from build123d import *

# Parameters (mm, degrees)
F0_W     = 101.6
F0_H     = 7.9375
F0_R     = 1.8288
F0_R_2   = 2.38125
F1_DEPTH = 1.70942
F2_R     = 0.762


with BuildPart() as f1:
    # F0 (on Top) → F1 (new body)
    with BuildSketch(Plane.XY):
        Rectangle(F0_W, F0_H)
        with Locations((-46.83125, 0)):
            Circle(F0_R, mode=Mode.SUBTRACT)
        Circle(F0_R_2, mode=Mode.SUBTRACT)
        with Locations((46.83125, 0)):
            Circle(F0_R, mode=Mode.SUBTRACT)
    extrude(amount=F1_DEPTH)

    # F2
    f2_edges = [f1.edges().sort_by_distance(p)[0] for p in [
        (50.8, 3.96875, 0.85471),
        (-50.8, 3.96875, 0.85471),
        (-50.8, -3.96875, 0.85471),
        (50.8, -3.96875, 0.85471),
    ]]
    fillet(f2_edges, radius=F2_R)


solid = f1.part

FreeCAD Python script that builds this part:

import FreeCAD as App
import Part
import Sketcher

V = App.Vector
Q = App.Units.Quantity


def edges_at(feature, points):
    """Names of the edges that pass closest to the given points."""
    edges = feature.Shape.Edges
    near = lambda p: min(range(len(edges)), key=lambda i: edges[i].distToShape(Part.Vertex(*p))[0])
    return sorted({f"Edge{near(p) + 1}" for p in points})


def add_polygon(sketch, points):
    """Adds a closed chain of lines whose ends are joined by coincident constraints."""
    first, n = sketch.GeometryCount, len(points)
    for a, b in zip(points, points[1:] + points[:1]):
        sketch.addGeometry(Part.LineSegment(App.Vector(*a, 0), App.Vector(*b, 0)), False)
    for i in range(n):
        sketch.addConstraint(Sketcher.Constraint("Coincident", first + i, 2, first + (i + 1) % n, 1))

doc = App.newDocument("Part")
body = doc.addObject("PartDesign::Body", "Body")

sketch1 = body.newObject("Sketcher::SketchObject", "Sketch")
sketch1.AttachmentSupport = (doc.getObject("XY_Plane"), [""])
sketch1.MapMode = "FlatFace"
add_polygon(sketch1, [(-50.8, 4), (-50.8, -4), (50.8, -4), (50.8, 4)])
sketch1.addGeometry(Part.Circle(V(-46.8, 0, 0), V(0, 0, 1), 1.8), False)
sketch1.addGeometry(Part.Circle(V(0, 0, 0), V(0, 0, 1), 2.4), False)
sketch1.addGeometry(Part.Circle(V(46.8, 0, 0), V(0, 0, 1), 1.8), False)
sketch1.addConstraint([
    Sketcher.Constraint("Vertical", 0),
    Sketcher.Constraint("Horizontal", 1),
    Sketcher.Constraint("Vertical", 2),
    Sketcher.Constraint("Horizontal", 3),
    Sketcher.Constraint("Coincident", 5, 3, -1, 1),
    Sketcher.Constraint("Equal", 4, 6),
    Sketcher.Constraint("Symmetric", 4, 3, 6, 3, -1, 1),
    Sketcher.Constraint("Symmetric", 0, 2, 2, 2, -1, 1),
    Sketcher.Constraint("PointOnObject", 4, 3, -1),
    Sketcher.Constraint("DistanceX", 1, 1, 1, 2, Q("4 in")),
    Sketcher.Constraint("Diameter", 4, Q("0.144 in")),
    Sketcher.Constraint("Diameter", 5, Q("0.1875 in")),
    Sketcher.Constraint("DistanceY", 0, 2, 0, 1, Q("0.3125 in")),
    Sketcher.Constraint("DistanceX", 4, 3, -1, 1, Q("1.84375 in")),
])
pad1 = body.newObject("PartDesign::Pad", "Pad")
pad1.Profile = sketch1
pad1.Length = Q("0.0673 in")
doc.recompute()

fillet = body.newObject("PartDesign::Fillet", "Fillet")
fillet.Base = (pad1, edges_at(pad1, [
    (50.8, 3.969, 0.855),
    (-50.8, 3.969, 0.855),
    (-50.8, -3.969, 0.855),
    (50.8, -3.969, 0.855),
]))
fillet.Radius = Q("0.03 in")

doc.recompute()
